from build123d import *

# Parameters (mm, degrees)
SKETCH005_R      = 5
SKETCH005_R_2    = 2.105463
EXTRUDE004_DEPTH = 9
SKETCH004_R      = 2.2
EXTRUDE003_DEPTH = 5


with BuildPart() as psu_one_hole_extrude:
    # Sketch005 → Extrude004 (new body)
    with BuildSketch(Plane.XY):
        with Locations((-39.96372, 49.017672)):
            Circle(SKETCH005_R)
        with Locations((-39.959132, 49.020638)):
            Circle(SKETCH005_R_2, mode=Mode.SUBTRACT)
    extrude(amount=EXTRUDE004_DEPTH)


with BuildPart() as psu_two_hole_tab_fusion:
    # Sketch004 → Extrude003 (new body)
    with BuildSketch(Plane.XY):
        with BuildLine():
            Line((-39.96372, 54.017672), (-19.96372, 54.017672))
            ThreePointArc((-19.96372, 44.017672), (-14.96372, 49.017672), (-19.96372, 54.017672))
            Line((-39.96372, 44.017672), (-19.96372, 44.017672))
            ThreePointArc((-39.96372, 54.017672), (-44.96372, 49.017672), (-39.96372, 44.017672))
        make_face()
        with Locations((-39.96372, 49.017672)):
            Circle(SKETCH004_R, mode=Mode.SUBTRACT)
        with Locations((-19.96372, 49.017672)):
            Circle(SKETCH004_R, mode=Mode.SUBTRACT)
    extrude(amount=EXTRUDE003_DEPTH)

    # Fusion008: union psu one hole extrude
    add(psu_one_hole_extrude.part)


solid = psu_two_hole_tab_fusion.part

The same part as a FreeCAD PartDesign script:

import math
import FreeCAD as App
import Part
import Sketcher

doc = App.newDocument("Part")
body = doc.addObject("PartDesign::Body", "Body")

# Sketch on XY plane
sketch1 = body.newObject("Sketcher::SketchObject", "Sketch")
sketch1.AttachmentSupport = (doc.getObject("XY_Plane"), [""])
sketch1.MapMode = "FlatFace"
sketch1.addGeometry(Part.Circle(App.Vector(-39.96372, 49.017672, 0), App.Vector(0, 0, 1), 5), False)
sketch1.addGeometry(Part.Circle(App.Vector(-39.959132, 49.020638, 0), App.Vector(0, 0, 1), 2.105463), False)
sketch1.addConstraint(Sketcher.Constraint("Diameter", 0, 10.0))
sketch1.addConstraint(Sketcher.Constraint("Diameter", 1, 4.210926))
sketch1.addConstraint(Sketcher.Constraint("DistanceX", 0, 3, -1, 1, 39.96372))
sketch1.addConstraint(Sketcher.Constraint("DistanceY", -1, 1, 0, 3, 49.017672))
sketch1.addConstraint(Sketcher.Constraint("DistanceX", 1, 3, -1, 1, 39.959132))
sketch1.addConstraint(Sketcher.Constraint("DistanceY", -1, 1, 1, 3, 49.020638))
pad1 = body.newObject("PartDesign::Pad", "Pad")
pad1.Profile = sketch1
pad1.Length = 9
body2 = doc.addObject("PartDesign::Body", "Body001")

# Sketch on XY plane
sketch2 = body2.newObject("Sketcher::SketchObject", "Sketch001")
sketch2.AttachmentSupport = (doc.getObject("XY_Plane001"), [""])
sketch2.MapMode = "FlatFace"
sketch2.addGeometry(Part.LineSegment(App.Vector(-19.96372, 54.017672, 0), App.Vector(-39.96372, 54.017672, 0)), False)
sketch2.addGeometry(Part.ArcOfCircle(Part.Circle(App.Vector(-39.96372, 49.017672, 0), App.Vector(0, 0, 1), 5), math.radians(90), math.radians(270)), False)
sketch2.addGeometry(Part.LineSegment(App.Vector(-39.96372, 44.017672, 0), App.Vector(-19.96372, 44.017672, 0)), False)
sketch2.addGeometry(Part.ArcOfCircle(Part.Circle(App.Vector(-19.96372, 49.017672, 0), App.Vector(0, 0, 1), 5), math.radians(-90), math.radians(90)), False)
sketch2.addGeometry(Part.Circle(App.Vector(-19.96372, 49.017672, 0), App.Vector(0, 0, 1), 2.2), False)
sketch2.addGeometry(Part.Circle(App.Vector(-39.96372, 49.017672, 0), App.Vector(0, 0, 1), 2.2), False)
sketch2.addConstraint(Sketcher.Constraint("Tangent", 0, 2, 1, 1))
sketch2.addConstraint(Sketcher.Constraint("Tangent", 1, 2, 2, 1))
sketch2.addConstraint(Sketcher.Constraint("Tangent", 2, 2, 3, 1))
sketch2.addConstraint(Sketcher.Constraint("Tangent", 3, 2, 0, 1))
sketch2.addConstraint(Sketcher.Constraint("Horizontal", 0))
sketch2.addConstraint(Sketcher.Constraint("Horizontal", 2))
sketch2.addConstraint(Sketcher.Constraint("Coincident", 4, 3, 3, 3))
sketch2.addConstraint(Sketcher.Constraint("Coincident", 5, 3, 1, 3))
sketch2.addConstraint(Sketcher.Constraint("Equal", 4, 5))
sketch2.addConstraint(Sketcher.Constraint("Radius", 1, 5.0))
sketch2.addConstraint(Sketcher.Constraint("Diameter", 4, 4.4))
sketch2.addConstraint(Sketcher.Constraint("DistanceX", 0, 2, 0, 1, 20.0))
sketch2.addConstraint(Sketcher.Constraint("DistanceX", 1, 3, -1, 1, 39.96372))
sketch2.addConstraint(Sketcher.Constraint("DistanceY", -1, 1, 1, 3, 49.017672))
pad2 = body2.newObject("PartDesign::Pad", "Pad001")
pad2.Profile = sketch2
pad2.Length = 5
doc.recompute()

boolean = body2.newObject("PartDesign::Boolean", "Boolean")
boolean.Type = "Fuse"
boolean.addObjects([body])

doc.recompute()
